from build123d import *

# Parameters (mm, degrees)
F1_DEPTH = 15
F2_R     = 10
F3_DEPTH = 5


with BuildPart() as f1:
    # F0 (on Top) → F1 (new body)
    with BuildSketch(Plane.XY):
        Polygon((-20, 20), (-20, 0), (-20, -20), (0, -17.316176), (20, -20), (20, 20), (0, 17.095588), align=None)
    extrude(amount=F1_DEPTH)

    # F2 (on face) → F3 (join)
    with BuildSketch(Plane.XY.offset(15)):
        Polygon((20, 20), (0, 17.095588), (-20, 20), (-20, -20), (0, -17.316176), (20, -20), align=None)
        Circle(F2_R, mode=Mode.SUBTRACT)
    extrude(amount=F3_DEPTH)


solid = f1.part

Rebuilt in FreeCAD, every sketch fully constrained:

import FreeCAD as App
import Part
import Sketcher

V = App.Vector

doc = App.newDocument("Part")
body = doc.addObject("PartDesign::Body", "Body")

# Sketch on XY plane
sketch1 = body.newObject("Sketcher::SketchObject", "Sketch")
sketch1.AttachmentSupport = (doc.getObject("XY_Plane"), [""])
sketch1.MapMode = "FlatFace"
sketch1.addGeometry([
    Part.LineSegment(V(-20, 20, 0), V(-20, -20, 0)),  # 0
    Part.LineSegment(V(-20, -20, 0), V(0, -17, 0)),  # 1
    Part.LineSegment(V(0, -17, 0), V(20, -20, 0)),  # 2
    Part.LineSegment(V(20, -20, 0), V(20, 20, 0)),  # 3
    Part.LineSegment(V(20, 20, 0), V(0, 17, 0)),  # 4
    Part.LineSegment(V(0, 17, 0), V(-20, 20, 0)),  # 5
], False)
sketch1.addConstraint([
    Sketcher.Constraint("Coincident", 0, 2, 1, 1),
    Sketcher.Constraint("Coincident", 1, 2, 2, 1),
    Sketcher.Constraint("Coincident", 2, 2, 3, 1),
    Sketcher.Constraint("Coincident", 3, 2, 4, 1),
    Sketcher.Constraint("Coincident", 4, 2, 5, 1),
    Sketcher.Constraint("Coincident", 5, 2, 0, 1),
    Sketcher.Constraint("Vertical", 0),
    Sketcher.Constraint("Vertical", 3),
    Sketcher.Constraint("Symmetric", 0, 2, 3, 2, -1, 1),
    Sketcher.Constraint("PointOnObject", 1, 2, -2),
    Sketcher.Constraint("PointOnObject", 4, 2, -2),
    Sketcher.Constraint("Horizontal", 0, 2, 2, 2),
    Sketcher.Constraint("Horizontal", 3, 2, 5, 2),
    Sketcher.Constraint("DistanceY", 0, 2, 0, 1, 40.0),
    Sketcher.Constraint("DistanceX", 0, 2, -1, 1, 20.0),
    Sketcher.Constraint("Distance", 1, 20.179269),
    Sketcher.Constraint("Distance", 4, 20.20979),
])
pad1 = body.newObject("PartDesign::Pad", "Pad")
pad1.Profile = sketch1
pad1.Length = 15

# Sketch on XY plane
sketch2 = body.newObject("Sketcher::SketchObject", "Sketch001")
sketch2.AttachmentSupport = (doc.getObject("XY_Plane"), [""])
sketch2.MapMode = "FlatFace"
sketch2.AttachmentOffset = App.Placement(V(0, 0, 15), App.Rotation())
sketch2.addGeometry([
    Part.LineSegment(V(20, 20, 0), V(0, 17, 0)),  # 0
    Part.LineSegment(V(0, 17, 0), V(-20, 20, 0)),  # 1
    Part.LineSegment(V(-20, 20, 0), V(-20, -20, 0)),  # 2
    Part.LineSegment(V(-20, -20, 0), V(0, -17, 0)),  # 3
    Part.LineSegment(V(0, -17, 0), V(20, -20, 0)),  # 4
    Part.LineSegment(V(20, -20, 0), V(20, 20, 0)),  # 5
    Part.Circle(V(0, 0, 0), V(0, 0, 1), 10),  # 6
], False)
sketch2.addConstraint([
    Sketcher.Constraint("Coincident", 0, 2, 1, 1),
    Sketcher.Constraint("Coincident", 1, 2, 2, 1),
    Sketcher.Constraint("Coincident", 2, 2, 3, 1),
    Sketcher.Constraint("Coincident", 3, 2, 4, 1),
    Sketcher.Constraint("Coincident", 4, 2, 5, 1),
    Sketcher.Constraint("Coincident", 5, 2, 0, 1),
    Sketcher.Constraint("Vertical", 2),
    Sketcher.Constraint("Vertical", 5),
    Sketcher.Constraint("Coincident", 6, 3, -1, 1),
    Sketcher.Constraint("Symmetric", 1, 2, 4, 2, -1, 1),
    Sketcher.Constraint("PointOnObject", 0, 2, -2),
    Sketcher.Constraint("PointOnObject", 3, 2, -2),
    Sketcher.Constraint("Horizontal", 2, 2, 4, 2),
    Sketcher.Constraint("Horizontal", 1, 2, 5, 2),
    Sketcher.Constraint("Diameter", 6, 20.0),
    Sketcher.Constraint("DistanceY", 2, 2, 2, 1, 40.0),
    Sketcher.Constraint("DistanceX", 1, 2, -1, 1, 20.0),
    Sketcher.Constraint("Distance", 0, 20.20979),
    Sketcher.Constraint("Distance", 3, 20.179269),
])
pad2 = body.newObject("PartDesign::Pad", "Pad001")
pad2.Profile = sketch2
pad2.Length = 5

doc.recompute()
